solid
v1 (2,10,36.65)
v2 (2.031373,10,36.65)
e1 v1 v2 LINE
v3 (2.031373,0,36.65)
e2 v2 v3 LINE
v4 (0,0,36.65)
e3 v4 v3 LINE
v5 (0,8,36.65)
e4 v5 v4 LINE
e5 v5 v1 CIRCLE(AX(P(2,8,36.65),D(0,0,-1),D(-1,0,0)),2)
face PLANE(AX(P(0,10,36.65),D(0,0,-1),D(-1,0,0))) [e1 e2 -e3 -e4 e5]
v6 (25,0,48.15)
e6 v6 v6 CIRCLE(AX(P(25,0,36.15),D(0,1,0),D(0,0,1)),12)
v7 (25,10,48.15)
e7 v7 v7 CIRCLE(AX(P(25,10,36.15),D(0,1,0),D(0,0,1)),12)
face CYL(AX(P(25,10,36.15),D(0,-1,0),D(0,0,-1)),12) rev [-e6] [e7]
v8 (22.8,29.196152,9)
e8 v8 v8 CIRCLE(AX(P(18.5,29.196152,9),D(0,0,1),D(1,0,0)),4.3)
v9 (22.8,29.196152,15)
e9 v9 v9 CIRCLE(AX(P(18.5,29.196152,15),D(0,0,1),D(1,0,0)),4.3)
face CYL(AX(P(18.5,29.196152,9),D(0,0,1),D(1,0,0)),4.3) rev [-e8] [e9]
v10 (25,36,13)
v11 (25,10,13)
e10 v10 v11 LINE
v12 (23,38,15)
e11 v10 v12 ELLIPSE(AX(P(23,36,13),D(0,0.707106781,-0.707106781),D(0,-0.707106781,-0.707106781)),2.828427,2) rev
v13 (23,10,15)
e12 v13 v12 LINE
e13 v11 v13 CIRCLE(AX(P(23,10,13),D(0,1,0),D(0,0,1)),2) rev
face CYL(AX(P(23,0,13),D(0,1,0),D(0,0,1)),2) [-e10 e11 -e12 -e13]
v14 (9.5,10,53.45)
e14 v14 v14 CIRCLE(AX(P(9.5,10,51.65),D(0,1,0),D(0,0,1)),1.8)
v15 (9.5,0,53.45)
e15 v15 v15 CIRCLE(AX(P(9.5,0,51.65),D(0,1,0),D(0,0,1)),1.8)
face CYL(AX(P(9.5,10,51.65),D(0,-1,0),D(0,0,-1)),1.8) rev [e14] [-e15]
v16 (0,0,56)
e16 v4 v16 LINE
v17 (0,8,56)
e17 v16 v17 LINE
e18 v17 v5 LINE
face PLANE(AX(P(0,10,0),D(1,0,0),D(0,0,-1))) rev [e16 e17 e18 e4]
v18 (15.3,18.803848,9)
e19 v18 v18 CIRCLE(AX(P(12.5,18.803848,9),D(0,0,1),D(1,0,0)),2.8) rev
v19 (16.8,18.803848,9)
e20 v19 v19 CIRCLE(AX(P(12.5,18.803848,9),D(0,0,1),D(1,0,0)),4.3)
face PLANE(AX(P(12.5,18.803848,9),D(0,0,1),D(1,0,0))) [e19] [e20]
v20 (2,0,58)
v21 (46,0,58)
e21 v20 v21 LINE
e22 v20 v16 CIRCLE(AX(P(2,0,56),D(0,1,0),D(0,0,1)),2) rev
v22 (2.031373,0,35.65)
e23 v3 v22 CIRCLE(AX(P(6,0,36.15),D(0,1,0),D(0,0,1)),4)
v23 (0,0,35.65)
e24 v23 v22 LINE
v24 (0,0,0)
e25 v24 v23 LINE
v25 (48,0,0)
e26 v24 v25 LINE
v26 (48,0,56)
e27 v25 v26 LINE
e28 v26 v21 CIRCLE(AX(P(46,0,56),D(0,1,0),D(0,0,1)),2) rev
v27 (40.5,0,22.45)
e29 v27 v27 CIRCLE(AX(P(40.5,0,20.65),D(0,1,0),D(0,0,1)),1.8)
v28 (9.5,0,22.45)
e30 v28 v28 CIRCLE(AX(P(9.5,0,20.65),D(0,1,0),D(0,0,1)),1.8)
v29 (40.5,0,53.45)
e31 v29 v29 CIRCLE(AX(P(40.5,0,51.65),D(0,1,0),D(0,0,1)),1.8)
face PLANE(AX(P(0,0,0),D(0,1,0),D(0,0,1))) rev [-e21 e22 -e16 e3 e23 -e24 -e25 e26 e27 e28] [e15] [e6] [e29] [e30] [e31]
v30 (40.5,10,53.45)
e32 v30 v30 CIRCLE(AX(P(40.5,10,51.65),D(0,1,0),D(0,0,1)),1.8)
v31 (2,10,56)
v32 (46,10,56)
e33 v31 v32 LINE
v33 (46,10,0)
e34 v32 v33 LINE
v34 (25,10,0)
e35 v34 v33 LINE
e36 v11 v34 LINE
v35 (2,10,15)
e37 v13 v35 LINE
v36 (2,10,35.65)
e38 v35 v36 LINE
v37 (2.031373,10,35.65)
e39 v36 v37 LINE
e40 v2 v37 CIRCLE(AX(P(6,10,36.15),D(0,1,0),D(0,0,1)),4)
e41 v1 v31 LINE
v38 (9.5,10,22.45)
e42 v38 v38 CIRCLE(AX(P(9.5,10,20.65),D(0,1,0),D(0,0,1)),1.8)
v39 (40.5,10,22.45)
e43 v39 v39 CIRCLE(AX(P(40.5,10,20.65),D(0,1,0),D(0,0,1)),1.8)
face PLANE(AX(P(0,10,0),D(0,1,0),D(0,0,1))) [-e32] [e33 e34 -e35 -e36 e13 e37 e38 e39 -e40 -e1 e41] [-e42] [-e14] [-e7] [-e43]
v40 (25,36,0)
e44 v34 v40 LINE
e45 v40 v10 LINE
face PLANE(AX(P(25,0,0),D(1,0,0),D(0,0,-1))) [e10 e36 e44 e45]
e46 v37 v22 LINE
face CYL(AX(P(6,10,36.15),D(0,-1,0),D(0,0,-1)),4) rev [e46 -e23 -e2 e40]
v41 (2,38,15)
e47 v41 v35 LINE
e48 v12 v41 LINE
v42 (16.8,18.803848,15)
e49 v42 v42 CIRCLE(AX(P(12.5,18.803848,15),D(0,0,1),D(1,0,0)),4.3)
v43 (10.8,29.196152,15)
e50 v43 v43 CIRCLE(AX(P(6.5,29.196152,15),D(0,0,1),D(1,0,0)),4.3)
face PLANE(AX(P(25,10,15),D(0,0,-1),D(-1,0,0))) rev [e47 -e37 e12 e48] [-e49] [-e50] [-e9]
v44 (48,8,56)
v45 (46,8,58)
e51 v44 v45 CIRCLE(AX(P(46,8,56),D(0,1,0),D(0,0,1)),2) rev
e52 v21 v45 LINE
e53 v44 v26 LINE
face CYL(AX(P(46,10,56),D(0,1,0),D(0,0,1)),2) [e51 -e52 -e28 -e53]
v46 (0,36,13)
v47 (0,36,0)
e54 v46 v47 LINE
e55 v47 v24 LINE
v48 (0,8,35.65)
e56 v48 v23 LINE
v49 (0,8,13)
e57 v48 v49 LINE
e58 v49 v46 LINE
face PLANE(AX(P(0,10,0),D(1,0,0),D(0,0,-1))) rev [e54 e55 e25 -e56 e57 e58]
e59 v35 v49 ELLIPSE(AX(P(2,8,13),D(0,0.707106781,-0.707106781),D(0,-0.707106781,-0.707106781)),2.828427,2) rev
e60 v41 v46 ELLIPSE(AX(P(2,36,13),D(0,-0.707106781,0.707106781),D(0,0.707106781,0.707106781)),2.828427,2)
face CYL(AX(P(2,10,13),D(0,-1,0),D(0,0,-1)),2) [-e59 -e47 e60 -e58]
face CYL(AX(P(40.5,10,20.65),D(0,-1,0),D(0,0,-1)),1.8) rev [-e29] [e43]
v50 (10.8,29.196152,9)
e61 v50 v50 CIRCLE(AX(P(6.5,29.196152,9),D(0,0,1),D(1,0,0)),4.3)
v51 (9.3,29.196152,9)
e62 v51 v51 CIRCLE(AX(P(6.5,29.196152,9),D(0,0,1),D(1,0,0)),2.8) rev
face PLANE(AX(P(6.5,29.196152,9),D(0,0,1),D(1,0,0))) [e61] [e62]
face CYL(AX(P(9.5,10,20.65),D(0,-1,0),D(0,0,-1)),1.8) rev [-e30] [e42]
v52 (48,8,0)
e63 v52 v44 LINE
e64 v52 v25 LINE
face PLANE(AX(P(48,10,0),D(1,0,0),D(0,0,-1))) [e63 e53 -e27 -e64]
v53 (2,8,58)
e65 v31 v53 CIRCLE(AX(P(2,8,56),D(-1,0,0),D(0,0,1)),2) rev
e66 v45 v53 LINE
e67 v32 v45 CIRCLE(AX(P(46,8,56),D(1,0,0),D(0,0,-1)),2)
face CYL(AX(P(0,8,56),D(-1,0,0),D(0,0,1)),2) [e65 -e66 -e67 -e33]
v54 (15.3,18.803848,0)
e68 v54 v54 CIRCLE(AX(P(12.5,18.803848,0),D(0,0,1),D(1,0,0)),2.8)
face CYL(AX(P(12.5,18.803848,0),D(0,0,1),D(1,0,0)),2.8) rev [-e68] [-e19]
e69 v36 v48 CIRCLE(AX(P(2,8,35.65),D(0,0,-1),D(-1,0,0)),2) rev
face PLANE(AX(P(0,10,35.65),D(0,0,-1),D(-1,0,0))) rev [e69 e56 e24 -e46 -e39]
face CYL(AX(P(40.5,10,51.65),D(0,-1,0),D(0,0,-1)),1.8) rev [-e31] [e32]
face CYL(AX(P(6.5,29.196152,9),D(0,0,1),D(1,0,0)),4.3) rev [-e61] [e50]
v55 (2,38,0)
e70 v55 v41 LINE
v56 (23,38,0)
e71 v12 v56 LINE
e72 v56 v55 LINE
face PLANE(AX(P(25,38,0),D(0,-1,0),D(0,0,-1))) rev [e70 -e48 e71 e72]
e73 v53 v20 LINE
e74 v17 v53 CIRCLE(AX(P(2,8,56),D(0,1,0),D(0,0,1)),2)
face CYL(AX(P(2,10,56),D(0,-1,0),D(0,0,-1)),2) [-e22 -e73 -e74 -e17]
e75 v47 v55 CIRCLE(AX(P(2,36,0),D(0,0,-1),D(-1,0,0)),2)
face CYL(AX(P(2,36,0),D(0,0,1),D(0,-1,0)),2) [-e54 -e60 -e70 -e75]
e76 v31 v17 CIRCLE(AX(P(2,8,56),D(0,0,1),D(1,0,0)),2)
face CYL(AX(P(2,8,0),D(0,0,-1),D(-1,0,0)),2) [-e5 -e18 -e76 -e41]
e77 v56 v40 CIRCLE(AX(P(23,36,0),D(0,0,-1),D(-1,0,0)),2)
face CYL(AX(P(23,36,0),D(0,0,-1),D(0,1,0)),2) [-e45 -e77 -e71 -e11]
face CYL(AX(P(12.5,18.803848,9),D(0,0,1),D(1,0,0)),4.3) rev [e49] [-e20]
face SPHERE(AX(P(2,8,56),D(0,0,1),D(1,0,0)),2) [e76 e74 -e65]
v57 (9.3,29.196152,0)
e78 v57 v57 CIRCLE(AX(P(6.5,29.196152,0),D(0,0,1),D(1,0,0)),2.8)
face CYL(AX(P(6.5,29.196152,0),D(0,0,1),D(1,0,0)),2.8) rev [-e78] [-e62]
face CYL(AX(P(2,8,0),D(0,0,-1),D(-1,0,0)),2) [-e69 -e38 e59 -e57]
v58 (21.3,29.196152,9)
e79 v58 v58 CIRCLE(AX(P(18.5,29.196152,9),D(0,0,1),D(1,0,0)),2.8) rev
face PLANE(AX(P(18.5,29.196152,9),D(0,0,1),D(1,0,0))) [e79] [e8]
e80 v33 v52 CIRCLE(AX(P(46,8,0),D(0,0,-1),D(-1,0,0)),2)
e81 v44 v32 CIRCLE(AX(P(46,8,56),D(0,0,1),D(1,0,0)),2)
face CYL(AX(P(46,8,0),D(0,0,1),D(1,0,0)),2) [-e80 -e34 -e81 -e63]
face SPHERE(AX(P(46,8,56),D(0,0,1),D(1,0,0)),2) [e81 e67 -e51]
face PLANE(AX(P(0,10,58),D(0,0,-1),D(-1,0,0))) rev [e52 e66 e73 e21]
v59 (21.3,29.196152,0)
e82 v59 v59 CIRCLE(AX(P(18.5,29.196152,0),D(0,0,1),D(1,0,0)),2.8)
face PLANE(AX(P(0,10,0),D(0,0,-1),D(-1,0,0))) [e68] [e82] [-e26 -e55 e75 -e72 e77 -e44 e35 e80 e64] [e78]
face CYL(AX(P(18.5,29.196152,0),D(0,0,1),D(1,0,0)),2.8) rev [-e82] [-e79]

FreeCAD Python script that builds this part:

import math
import FreeCAD as App
import Part
import Sketcher
from FreeCAD import Vector


def edges_at(feature, points):
    """Names of the edges that pass closest to the given points."""
    edges = feature.Shape.Edges
    near = lambda p: min(range(len(edges)), key=lambda i: edges[i].distToShape(Part.Vertex(*p))[0])
    return sorted({f"Edge{near(p) + 1}" for p in points})


def add_polygon(sketch, points):
    """Adds a closed chain of lines whose ends are joined by coincident constraints."""
    first, n = sketch.GeometryCount, len(points)
    for a, b in zip(points, points[1:] + points[:1]):
        sketch.addGeometry(Part.LineSegment(App.Vector(*a, 0), App.Vector(*b, 0)), False)
    for i in range(n):
        sketch.addConstraint(Sketcher.Constraint("Coincident", first + i, 2, first + (i + 1) % n, 1))

doc = App.newDocument("Part")
body = doc.addObject("PartDesign::Body", "Body")

# Sketch on XZ plane
sketch1 = body.newObject("Sketcher::SketchObject", "Sketch")
sketch1.AttachmentSupport = (doc.getObject("XZ_Plane"), [""])
sketch1.MapMode = "FlatFace"
sketch1.addGeometry(Part.LineSegment(Vector(48, 0, 0), Vector(0, 0, 0)), False)
sketch1.addGeometry(Part.LineSegment(Vector(0, 0, 0), Vector(0, 35.65, 0)), False)
sketch1.addGeometry(Part.LineSegment(Vector(0, 35.65, 0), Vector(2.031373, 35.65, 0)), False)
sketch1.addGeometry(Part.ArcOfCircle(Part.Circle(Vector(6, 36.15, 0), Vector(0, 0, 1), 4), math.radians(-172.819244), math.radians(0)), False)
sketch1.addGeometry(Part.ArcOfCircle(Part.Circle(Vector(6, 36.15, 0), Vector(0, 0, 1), 4), math.radians(0), math.radians(172.819244)), False)
sketch1.addGeometry(Part.LineSegment(Vector(2.031373, 36.65, 0), Vector(0, 36.65, 0)), False)
sketch1.addGeometry(Part.LineSegment(Vector(0, 36.65, 0), Vector(0, 58, 0)), False)
sketch1.addGeometry(Part.LineSegment(Vector(0, 58, 0), Vector(48, 58, 0)), False)
sketch1.addGeometry(Part.LineSegment(Vector(48, 58, 0), Vector(48, 0, 0)), False)
sketch1.addGeometry(Part.Circle(Vector(9.5, 51.65, 0), Vector(0, 0, 1), 1.8), False)
sketch1.addGeometry(Part.Circle(Vector(40.5, 51.65, 0), Vector(0, 0, 1), 1.8), False)
sketch1.addGeometry(Part.Circle(Vector(9.5, 20.65, 0), Vector(0, 0, 1), 1.8), False)
sketch1.addGeometry(Part.Circle(Vector(25, 36.15, 0), Vector(0, 0, 1), 12), False)
sketch1.addGeometry(Part.Circle(Vector(40.5, 20.65, 0), Vector(0, 0, 1), 1.8), False)
sketch1.addConstraint(Sketcher.Constraint("Coincident", 0, 2, 1, 1))
sketch1.addConstraint(Sketcher.Constraint("Coincident", 1, 2, 2, 1))
sketch1.addConstraint(Sketcher.Constraint("Coincident", 2, 2, 3, 1))
sketch1.addConstraint(Sketcher.Constraint("Tangent", 3, 2, 4, 1))
sketch1.addConstraint(Sketcher.Constraint("Coincident", 4, 2, 5, 1))
sketch1.addConstraint(Sketcher.Constraint("Coincident", 5, 2, 6, 1))
sketch1.addConstraint(Sketcher.Constraint("Coincident", 6, 2, 7, 1))
sketch1.addConstraint(Sketcher.Constraint("Coincident", 7, 2, 8, 1))
sketch1.addConstraint(Sketcher.Constraint("Coincident", 8, 2, 0, 1))
sketch1.addConstraint(Sketcher.Constraint("Horizontal", 0))
sketch1.addConstraint(Sketcher.Constraint("Vertical", 1))
sketch1.addConstraint(Sketcher.Constraint("Horizontal", 2))
sketch1.addConstraint(Sketcher.Constraint("Horizontal", 5))
sketch1.addConstraint(Sketcher.Constraint("Vertical", 6))
sketch1.addConstraint(Sketcher.Constraint("Horizontal", 7))
sketch1.addConstraint(Sketcher.Constraint("Vertical", 8))
sketch1.addConstraint(Sketcher.Constraint("Coincident", 0, 2, -1, 1))
sketch1.addConstraint(Sketcher.Constraint("Equal", 3, 4))
sketch1.addConstraint(Sketcher.Constraint("Equal", 9, 10))
sketch1.addConstraint(Sketcher.Constraint("Equal", 10, 11))
sketch1.addConstraint(Sketcher.Constraint("Equal", 11, 13))
sketch1.addConstraint(Sketcher.Constraint("PointOnObject", 5, 2, -2))
sketch1.addConstraint(Sketcher.Constraint("Horizontal", 9, 3, 10, 3))
sketch1.addConstraint(Sketcher.Constraint("Horizontal", 4, 3, 12, 3))
sketch1.addConstraint(Sketcher.Constraint("Horizontal", 11, 3, 13, 3))
sketch1.addConstraint(Sketcher.Constraint("Horizontal", 12, 3, 3, 2))
sketch1.addConstraint(Sketcher.Constraint("Vertical", 9, 3, 11, 3))
sketch1.addConstraint(Sketcher.Constraint("Vertical", 10, 3, 13, 3))
sketch1.addConstraint(Sketcher.Constraint("Vertical", 2, 2, 4, 2))
sketch1.addConstraint(Sketcher.Constraint("Diameter", 12, 24.0))
sketch1.addConstraint(Sketcher.Constraint("Radius", 3, 4.0))
sketch1.addConstraint(Sketcher.Constraint("Diameter", 9, 3.6))
sketch1.addConstraint(Sketcher.Constraint("DistanceX", 0, 2, 0, 1, 48.0))
sketch1.addConstraint(Sketcher.Constraint("DistanceY", 8, 2, 8, 1, 58.0))
sketch1.addConstraint(Sketcher.Constraint("DistanceX", -1, 1, 3, 3, 6.0))
sketch1.addConstraint(Sketcher.Constraint("DistanceX", -1, 1, 12, 3, 25.0))
sketch1.addConstraint(Sketcher.Constraint("DistanceX", 9, 3, 10, 3, 31.0))
sketch1.addConstraint(Sketcher.Constraint("DistanceY", 11, 3, 9, 3, 31.0))
sketch1.addConstraint(Sketcher.Constraint("DistanceY", 11, 3, 1, 2, 15.0))
sketch1.addConstraint(Sketcher.Constraint("DistanceY", 2, 2, 4, 2, 1.0))
sketch1.addConstraint(Sketcher.Constraint("DistanceY", 1, 1, 1, 2, 35.65))
sketch1.addConstraint(Sketcher.Constraint("DistanceX", -1, 1, 9, 3, 9.5))
pad1 = body.newObject("PartDesign::Pad", "Pad")
pad1.Profile = sketch1
pad1.Length = 10
pad1.Reversed = True

# Sketch on YZ plane
sketch2 = body.newObject("Sketcher::SketchObject", "Sketch001")
sketch2.AttachmentSupport = (doc.getObject("YZ_Plane"), [""])
sketch2.MapMode = "FlatFace"
add_polygon(sketch2, [(38, 15), (10, 15), (10, 0), (38, 0)])  # lines 0-3
sketch2.addConstraint(Sketcher.Constraint("Horizontal", 0))
sketch2.addConstraint(Sketcher.Constraint("Vertical", 1))
sketch2.addConstraint(Sketcher.Constraint("Horizontal", 2))
sketch2.addConstraint(Sketcher.Constraint("Vertical", 3))
sketch2.addConstraint(Sketcher.Constraint("PointOnObject", 1, 2, -1))
sketch2.addConstraint(Sketcher.Constraint("DistanceX", 0, 2, 0, 1, 28.0))
sketch2.addConstraint(Sketcher.Constraint("DistanceY", 1, 2, 1, 1, 15.0))
sketch2.addConstraint(Sketcher.Constraint("DistanceX", -1, 1, 0, 2, 10.0))
pad2 = body.newObject("PartDesign::Pad", "Pad001")
pad2.Profile = sketch2
pad2.Length = 25

# Sketch on XY plane
sketch3 = body.newObject("Sketcher::SketchObject", "Sketch002")
sketch3.AttachmentSupport = (doc.getObject("XY_Plane"), [""])
sketch3.MapMode = "FlatFace"
sketch3.AttachmentOffset = App.Placement(Vector(0, 0, 15), App.Rotation())
sketch3.addGeometry(Part.Circle(Vector(6.5, 29.196152, 0), Vector(0, 0, 1), 2.8), False)
sketch3.addGeometry(Part.Circle(Vector(18.5, 29.196152, 0), Vector(0, 0, 1), 2.8), False)
sketch3.addGeometry(Part.Circle(Vector(12.5, 18.803848, 0), Vector(0, 0, 1), 2.8), False)
sketch3.addConstraint(Sketcher.Constraint("Equal", 0, 1))
sketch3.addConstraint(Sketcher.Constraint("Equal", 1, 2))
sketch3.addConstraint(Sketcher.Constraint("Horizontal", 0, 3, 1, 3))
sketch3.addConstraint(Sketcher.Constraint("Diameter", 0, 5.6))
sketch3.addConstraint(Sketcher.Constraint("DistanceX", 0, 3, 1, 3, 12.0))
sketch3.addConstraint(Sketcher.Constraint("DistanceX", 0, 3, 2, 3, 6.0))
sketch3.addConstraint(Sketcher.Constraint("DistanceX", -1, 1, 0, 3, 6.5))
sketch3.addConstraint(Sketcher.Constraint("DistanceY", -1, 1, 0, 3, 29.196152))
sketch3.addConstraint(Sketcher.Constraint("DistanceY", -1, 1, 2, 3, 18.803848))
pocket1 = body.newObject("PartDesign::Pocket", "Pocket")
pocket1.Profile = sketch3
pocket1.Type = "ThroughAll"

# Sketch on XY plane
sketch4 = body.newObject("Sketcher::SketchObject", "Sketch003")
sketch4.AttachmentSupport = (doc.getObject("XY_Plane"), [""])
sketch4.MapMode = "FlatFace"
sketch4.AttachmentOffset = App.Placement(Vector(0, 0, 15), App.Rotation())
sketch4.addGeometry(Part.Circle(Vector(6.5, 29.196152, 0), Vector(0, 0, 1), 4.3), False)
sketch4.addGeometry(Part.Circle(Vector(18.5, 29.196152, 0), Vector(0, 0, 1), 4.3), False)
sketch4.addGeometry(Part.Circle(Vector(12.5, 18.803848, 0), Vector(0, 0, 1), 4.3), False)
sketch4.addConstraint(Sketcher.Constraint("Equal", 0, 1))
sketch4.addConstraint(Sketcher.Constraint("Equal", 1, 2))
sketch4.addConstraint(Sketcher.Constraint("Horizontal", 0, 3, 1, 3))
sketch4.addConstraint(Sketcher.Constraint("Diameter", 0, 8.6))
sketch4.addConstraint(Sketcher.Constraint("DistanceX", 0, 3, 1, 3, 12.0))
sketch4.addConstraint(Sketcher.Constraint("DistanceX", 0, 3, 2, 3, 6.0))
sketch4.addConstraint(Sketcher.Constraint("DistanceX", -1, 1, 0, 3, 6.5))
sketch4.addConstraint(Sketcher.Constraint("DistanceY", -1, 1, 0, 3, 29.196152))
sketch4.addConstraint(Sketcher.Constraint("DistanceY", -1, 1, 2, 3, 18.803848))
pocket2 = body.newObject("PartDesign::Pocket", "Pocket001")
pocket2.Profile = sketch4
pocket2.Length = 6
doc.recompute()

fillet = body.newObject("PartDesign::Fillet", "Fillet")
fillet.Base = (pocket2, edges_at(pocket2, [
    (0, 10, 47.325),
    (24, 10, 58),
    (48, 5, 58),
    (0, 5, 58),
    (48, 10, 29),
    (0, 10, 25.325),
    (0, 38, 7.5),
    (0, 24, 15),
    (25, 38, 7.5),
    (25, 24, 15),
]))
fillet.Radius = 2

doc.recompute()
